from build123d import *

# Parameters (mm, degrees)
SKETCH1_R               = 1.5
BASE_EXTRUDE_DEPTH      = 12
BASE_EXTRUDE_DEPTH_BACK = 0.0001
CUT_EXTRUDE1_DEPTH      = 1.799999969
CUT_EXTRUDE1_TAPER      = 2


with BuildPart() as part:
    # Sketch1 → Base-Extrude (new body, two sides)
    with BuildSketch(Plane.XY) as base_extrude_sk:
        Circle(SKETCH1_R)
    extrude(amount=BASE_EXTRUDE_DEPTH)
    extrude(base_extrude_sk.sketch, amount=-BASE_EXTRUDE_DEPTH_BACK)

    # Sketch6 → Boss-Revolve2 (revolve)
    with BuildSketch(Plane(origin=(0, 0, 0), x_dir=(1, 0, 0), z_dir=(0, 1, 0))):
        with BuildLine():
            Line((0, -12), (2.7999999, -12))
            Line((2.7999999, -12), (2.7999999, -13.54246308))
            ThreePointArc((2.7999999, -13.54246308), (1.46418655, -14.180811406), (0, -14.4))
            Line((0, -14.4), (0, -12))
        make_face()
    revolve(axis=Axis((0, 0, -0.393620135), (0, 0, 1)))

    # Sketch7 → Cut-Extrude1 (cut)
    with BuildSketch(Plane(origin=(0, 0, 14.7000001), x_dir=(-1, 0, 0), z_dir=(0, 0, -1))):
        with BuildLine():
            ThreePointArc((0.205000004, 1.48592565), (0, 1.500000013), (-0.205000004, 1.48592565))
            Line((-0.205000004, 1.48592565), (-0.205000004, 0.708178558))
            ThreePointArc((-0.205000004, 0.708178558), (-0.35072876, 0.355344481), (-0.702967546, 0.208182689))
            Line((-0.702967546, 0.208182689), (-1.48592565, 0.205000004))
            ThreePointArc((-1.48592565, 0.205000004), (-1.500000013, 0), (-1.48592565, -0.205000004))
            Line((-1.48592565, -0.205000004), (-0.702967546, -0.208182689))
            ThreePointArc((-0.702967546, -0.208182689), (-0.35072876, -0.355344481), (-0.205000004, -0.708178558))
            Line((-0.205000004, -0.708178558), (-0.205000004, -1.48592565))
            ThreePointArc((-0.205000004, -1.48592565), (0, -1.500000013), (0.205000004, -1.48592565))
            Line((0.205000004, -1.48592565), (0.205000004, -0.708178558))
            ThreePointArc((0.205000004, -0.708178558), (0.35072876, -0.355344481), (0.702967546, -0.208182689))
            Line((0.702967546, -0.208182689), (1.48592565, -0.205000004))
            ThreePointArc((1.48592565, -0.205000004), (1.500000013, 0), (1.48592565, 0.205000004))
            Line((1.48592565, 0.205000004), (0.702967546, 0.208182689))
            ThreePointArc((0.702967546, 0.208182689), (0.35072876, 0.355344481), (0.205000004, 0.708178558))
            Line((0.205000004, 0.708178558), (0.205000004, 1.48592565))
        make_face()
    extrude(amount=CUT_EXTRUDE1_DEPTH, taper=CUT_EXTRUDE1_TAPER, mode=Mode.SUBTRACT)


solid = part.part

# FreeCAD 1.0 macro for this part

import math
import FreeCAD as App
import Part
import Sketcher

V = App.Vector

doc = App.newDocument("Part")
params = doc.addObject("Spreadsheet::Sheet", "Params")
for row, (alias, value) in enumerate([
    ("sketch1_diameter", "3 mm"),
    ("pad1_length", "12 mm"),
    ("pad1_length2", "0.0001 mm"),
    ("sketch2_radius", "5 mm"),
    ("sketch2_width", "2.8 mm"),
    ("sketch2_height", "2.4 mm"),
    ("revolution_angle", "360 deg"),
    ("sketch3_radius", "1.5 mm"),
    ("sketch3_radius2", "0.5 mm"),
    ("pocket1_length", "1.8 mm"),
    ("pocket1_taper", "-2 deg"),
], start=1):
    params.set(f"A{row}", alias)
    params.set(f"B{row}", "=" + value)
    params.setAlias(f"B{row}", alias)

body = doc.addObject("PartDesign::Body", "Body")

sketch1 = doc.addObject("Sketcher::SketchObject", "Sketch")
body.addObject(sketch1)
sketch1.AttachmentSupport = (doc.XY_Plane, [""])
sketch1.MapMode = "FlatFace"
sketch1.addGeometry(Part.Circle(V(0, 0, 0), V(0, 0, 1), 1.5), False)
sketch1.addConstraint(Sketcher.Constraint("Coincident", 0, 3, -1, 1))
sketch1.addConstraint(Sketcher.Constraint("Diameter", 0, 3.0))
sketch1.setExpression("Constraints[1]", "Params.sketch1_diameter")
pad1 = doc.addObject("PartDesign::Pad", "Pad")
body.addObject(pad1)
pad1.Profile = sketch1
pad1.Type = "TwoLengths"
pad1.setExpression("Length", "Params.pad1_length")
pad1.setExpression("Length2", "Params.pad1_length2")

sketch2 = doc.addObject("Sketcher::SketchObject", "Sketch001")
body.addObject(sketch2)
sketch2.AttachmentSupport = (doc.XZ_Plane, [""])
sketch2.MapMode = "FlatFace"
sketch2.addGeometry(Part.LineSegment(V(2.8, 12, 0), V(0, 12, 0)), False)
sketch2.addGeometry(Part.LineSegment(V(0, 12, 0), V(0, 14.4, 0)), False)
sketch2.addGeometry(Part.ArcOfCircle(Part.Circle(V(0, 9.4, 0), V(0, 0, 1), 5), math.radians(55.944203), math.radians(90)), False)
sketch2.addGeometry(Part.LineSegment(V(2.8, 13.542463, 0), V(2.8, 12, 0)), False)
sketch2.addConstraint(Sketcher.Constraint("Coincident", 0, 2, 1, 1))
sketch2.addConstraint(Sketcher.Constraint("Coincident", 1, 2, 2, 2))
sketch2.addConstraint(Sketcher.Constraint("Coincident", 2, 1, 3, 1))
sketch2.addConstraint(Sketcher.Constraint("Coincident", 3, 2, 0, 1))
sketch2.addConstraint(Sketcher.Constraint("Horizontal", 0))
sketch2.addConstraint(Sketcher.Constraint("Vertical", 1))
sketch2.addConstraint(Sketcher.Constraint("Vertical", 3))
sketch2.addConstraint(Sketcher.Constraint("PointOnObject", 2, 3, -2))
sketch2.addConstraint(Sketcher.Constraint("PointOnObject", 0, 2, -2))
sketch2.addConstraint(Sketcher.Constraint("Radius", 2, 5.0))
sketch2.addConstraint(Sketcher.Constraint("DistanceX", 0, 2, 0, 1, 2.8))
sketch2.addConstraint(Sketcher.Constraint("DistanceY", 1, 1, 1, 2, 2.4))
sketch2.addConstraint(Sketcher.Constraint("DistanceY", -1, 1, 0, 2, 12.0))
sketch2.setExpression("Constraints[9]", "Params.sketch2_radius")
sketch2.setExpression("Constraints[10]", "Params.sketch2_width")
sketch2.setExpression("Constraints[11]", "Params.sketch2_height")
revolution = doc.addObject("PartDesign::Revolution", "Revolution")
body.addObject(revolution)
revolution.Profile = sketch2
revolution.ReferenceAxis = (sketch2, ["V_Axis"])
revolution.setExpression("Angle", "Params.revolution_angle")

sketch3 = doc.addObject("Sketcher::SketchObject", "Sketch002")
body.addObject(sketch3)
sketch3.AttachmentSupport = (doc.XY_Plane, [""])
sketch3.MapMode = "FlatFace"
sketch3.AttachmentOffset = App.Placement(V(0, 0, 14.7), App.Rotation())
sketch3.addGeometry(Part.ArcOfCircle(Part.Circle(V(0, 0, 0), V(0, 0, 1), 1.5), math.radians(82.144994), math.radians(97.855006)), False)
sketch3.addGeometry(Part.LineSegment(V(0.205, 1.485926, 0), V(0.205, 0.708179, 0)), False)
sketch3.addGeometry(Part.ArcOfCircle(Part.Circle(V(0.705, 0.708179, 0), V(0, 0, 1), 0.5), math.radians(180), math.radians(269.767097)), False)
sketch3.addGeometry(Part.LineSegment(V(0.702968, 0.208183, 0), V(1.485926, 0.205, 0)), False)
sketch3.addGeometry(Part.ArcOfCircle(Part.Circle(V(0, 0, 0), V(0, 0, 1), 1.5), math.radians(-7.855006), math.radians(7.855006)), False)
sketch3.addGeometry(Part.LineSegment(V(1.485926, -0.205, 0), V(0.702968, -0.208183, 0)), False)
sketch3.addGeometry(Part.ArcOfCircle(Part.Circle(V(0.705, -0.708179, 0), V(0, 0, 1), 0.5), math.radians(90.232903), math.radians(180)), False)
sketch3.addGeometry(Part.LineSegment(V(0.205, -0.708179, 0), V(0.205, -1.485926, 0)), False)
sketch3.addGeometry(Part.ArcOfCircle(Part.Circle(V(0, 0, 0), V(0, 0, 1), 1.5), math.radians(-97.855006), math.radians(-82.144994)), False)
sketch3.addGeometry(Part.LineSegment(V(-0.205, -1.485926, 0), V(-0.205, -0.708179, 0)), False)
sketch3.addGeometry(Part.ArcOfCircle(Part.Circle(V(-0.705, -0.708179, 0), V(0, 0, 1), 0.5), math.radians(0), math.radians(89.767097)), False)
sketch3.addGeometry(Part.LineSegment(V(-0.702968, -0.208183, 0), V(-1.485926, -0.205, 0)), False)
sketch3.addGeometry(Part.ArcOfCircle(Part.Circle(V(0, 0, 0), V(0, 0, 1), 1.5), math.radians(172.144994), math.radians(187.855006)), False)
sketch3.addGeometry(Part.LineSegment(V(-1.485926, 0.205, 0), V(-0.702968, 0.208183, 0)), False)
sketch3.addGeometry(Part.ArcOfCircle(Part.Circle(V(-0.705, 0.708179, 0), V(0, 0, 1), 0.5), math.radians(-89.767097), math.radians(0)), False)
sketch3.addGeometry(Part.LineSegment(V(-0.205, 0.708179, 0), V(-0.205, 1.485926, 0)), False)
sketch3.addConstraint(Sketcher.Constraint("Coincident", 0, 1, 1, 1))
sketch3.addConstraint(Sketcher.Constraint("Tangent", 1, 2, 2, 1))
sketch3.addConstraint(Sketcher.Constraint("Tangent", 2, 2, 3, 1))
sketch3.addConstraint(Sketcher.Constraint("Coincident", 3, 2, 4, 2))
sketch3.addConstraint(Sketcher.Constraint("Coincident", 4, 1, 5, 1))
sketch3.addConstraint(Sketcher.Constraint("Tangent", 5, 2, 6, 1))
sketch3.addConstraint(Sketcher.Constraint("Tangent", 6, 2, 7, 1))
sketch3.addConstraint(Sketcher.Constraint("Coincident", 7, 2, 8, 2))
sketch3.addConstraint(Sketcher.Constraint("Coincident", 8, 1, 9, 1))
sketch3.addConstraint(Sketcher.Constraint("Tangent", 9, 2, 10, 1))
sketch3.addConstraint(Sketcher.Constraint("Tangent", 10, 2, 11, 1))
sketch3.addConstraint(Sketcher.Constraint("Coincident", 11, 2, 12, 2))
sketch3.addConstraint(Sketcher.Constraint("Coincident", 12, 1, 13, 1))
sketch3.addConstraint(Sketcher.Constraint("Tangent", 13, 2, 14, 1))
sketch3.addConstraint(Sketcher.Constraint("Tangent", 14, 2, 15, 1))
sketch3.addConstraint(Sketcher.Constraint("Coincident", 15, 2, 0, 2))
sketch3.addConstraint(Sketcher.Constraint("Vertical", 1))
sketch3.addConstraint(Sketcher.Constraint("Vertical", 7))
sketch3.addConstraint(Sketcher.Constraint("Vertical", 9))
sketch3.addConstraint(Sketcher.Constraint("Vertical", 15))
sketch3.addConstraint(Sketcher.Constraint("Coincident", 0, 3, -1, 1))
sketch3.addConstraint(Sketcher.Constraint("Coincident", 4, 3, -1, 1))
sketch3.addConstraint(Sketcher.Constraint("Coincident", 8, 3, -1, 1))
sketch3.addConstraint(Sketcher.Constraint("Coincident", 12, 3, -1, 1))
sketch3.addConstraint(Sketcher.Constraint("Equal", 0, 4))
sketch3.addConstraint(Sketcher.Constraint("Equal", 2, 6))
sketch3.addConstraint(Sketcher.Constraint("Equal", 4, 8))
sketch3.addConstraint(Sketcher.Constraint("Equal", 6, 10))
sketch3.addConstraint(Sketcher.Constraint("Equal", 8, 12))
sketch3.addConstraint(Sketcher.Constraint("Equal", 10, 14))
sketch3.addConstraint(Sketcher.Constraint("Symmetric", 2, 3, 10, 3, -1, 1))
sketch3.addConstraint(Sketcher.Constraint("Symmetric", 6, 3, 14, 3, -1, 1))
sketch3.addConstraint(Sketcher.Constraint("Symmetric", 6, 3, 10, 3, -2))
sketch3.addConstraint(Sketcher.Constraint("Parallel", 3, 11))
sketch3.addConstraint(Sketcher.Constraint("Parallel", 5, 13))
sketch3.addConstraint(Sketcher.Constraint("Horizontal", 4, 1, 11, 2))
sketch3.addConstraint(Sketcher.Constraint("Radius", 0, 1.5))
sketch3.addConstraint(Sketcher.Constraint("Radius", 2, 0.5))
sketch3.addConstraint(Sketcher.Constraint("DistanceX", 10, 3, 6, 3, 1.41))
sketch3.addConstraint(Sketcher.Constraint("DistanceY", 4, 1, 3, 2, 0.41))
sketch3.addConstraint(Sketcher.Constraint("DistanceY", 1, 2, 1, 1, 0.777747))
sketch3.setExpression("Constraints[36]", "Params.sketch3_radius")
sketch3.setExpression("Constraints[37]", "Params.sketch3_radius2")
pocket1 = doc.addObject("PartDesign::Pocket", "Pocket")
body.addObject(pocket1)
pocket1.Profile = sketch3
pocket1.setExpression("Length", "Params.pocket1_length")
pocket1.setExpression("TaperAngle", "Params.pocket1_taper")

doc.recompute()
